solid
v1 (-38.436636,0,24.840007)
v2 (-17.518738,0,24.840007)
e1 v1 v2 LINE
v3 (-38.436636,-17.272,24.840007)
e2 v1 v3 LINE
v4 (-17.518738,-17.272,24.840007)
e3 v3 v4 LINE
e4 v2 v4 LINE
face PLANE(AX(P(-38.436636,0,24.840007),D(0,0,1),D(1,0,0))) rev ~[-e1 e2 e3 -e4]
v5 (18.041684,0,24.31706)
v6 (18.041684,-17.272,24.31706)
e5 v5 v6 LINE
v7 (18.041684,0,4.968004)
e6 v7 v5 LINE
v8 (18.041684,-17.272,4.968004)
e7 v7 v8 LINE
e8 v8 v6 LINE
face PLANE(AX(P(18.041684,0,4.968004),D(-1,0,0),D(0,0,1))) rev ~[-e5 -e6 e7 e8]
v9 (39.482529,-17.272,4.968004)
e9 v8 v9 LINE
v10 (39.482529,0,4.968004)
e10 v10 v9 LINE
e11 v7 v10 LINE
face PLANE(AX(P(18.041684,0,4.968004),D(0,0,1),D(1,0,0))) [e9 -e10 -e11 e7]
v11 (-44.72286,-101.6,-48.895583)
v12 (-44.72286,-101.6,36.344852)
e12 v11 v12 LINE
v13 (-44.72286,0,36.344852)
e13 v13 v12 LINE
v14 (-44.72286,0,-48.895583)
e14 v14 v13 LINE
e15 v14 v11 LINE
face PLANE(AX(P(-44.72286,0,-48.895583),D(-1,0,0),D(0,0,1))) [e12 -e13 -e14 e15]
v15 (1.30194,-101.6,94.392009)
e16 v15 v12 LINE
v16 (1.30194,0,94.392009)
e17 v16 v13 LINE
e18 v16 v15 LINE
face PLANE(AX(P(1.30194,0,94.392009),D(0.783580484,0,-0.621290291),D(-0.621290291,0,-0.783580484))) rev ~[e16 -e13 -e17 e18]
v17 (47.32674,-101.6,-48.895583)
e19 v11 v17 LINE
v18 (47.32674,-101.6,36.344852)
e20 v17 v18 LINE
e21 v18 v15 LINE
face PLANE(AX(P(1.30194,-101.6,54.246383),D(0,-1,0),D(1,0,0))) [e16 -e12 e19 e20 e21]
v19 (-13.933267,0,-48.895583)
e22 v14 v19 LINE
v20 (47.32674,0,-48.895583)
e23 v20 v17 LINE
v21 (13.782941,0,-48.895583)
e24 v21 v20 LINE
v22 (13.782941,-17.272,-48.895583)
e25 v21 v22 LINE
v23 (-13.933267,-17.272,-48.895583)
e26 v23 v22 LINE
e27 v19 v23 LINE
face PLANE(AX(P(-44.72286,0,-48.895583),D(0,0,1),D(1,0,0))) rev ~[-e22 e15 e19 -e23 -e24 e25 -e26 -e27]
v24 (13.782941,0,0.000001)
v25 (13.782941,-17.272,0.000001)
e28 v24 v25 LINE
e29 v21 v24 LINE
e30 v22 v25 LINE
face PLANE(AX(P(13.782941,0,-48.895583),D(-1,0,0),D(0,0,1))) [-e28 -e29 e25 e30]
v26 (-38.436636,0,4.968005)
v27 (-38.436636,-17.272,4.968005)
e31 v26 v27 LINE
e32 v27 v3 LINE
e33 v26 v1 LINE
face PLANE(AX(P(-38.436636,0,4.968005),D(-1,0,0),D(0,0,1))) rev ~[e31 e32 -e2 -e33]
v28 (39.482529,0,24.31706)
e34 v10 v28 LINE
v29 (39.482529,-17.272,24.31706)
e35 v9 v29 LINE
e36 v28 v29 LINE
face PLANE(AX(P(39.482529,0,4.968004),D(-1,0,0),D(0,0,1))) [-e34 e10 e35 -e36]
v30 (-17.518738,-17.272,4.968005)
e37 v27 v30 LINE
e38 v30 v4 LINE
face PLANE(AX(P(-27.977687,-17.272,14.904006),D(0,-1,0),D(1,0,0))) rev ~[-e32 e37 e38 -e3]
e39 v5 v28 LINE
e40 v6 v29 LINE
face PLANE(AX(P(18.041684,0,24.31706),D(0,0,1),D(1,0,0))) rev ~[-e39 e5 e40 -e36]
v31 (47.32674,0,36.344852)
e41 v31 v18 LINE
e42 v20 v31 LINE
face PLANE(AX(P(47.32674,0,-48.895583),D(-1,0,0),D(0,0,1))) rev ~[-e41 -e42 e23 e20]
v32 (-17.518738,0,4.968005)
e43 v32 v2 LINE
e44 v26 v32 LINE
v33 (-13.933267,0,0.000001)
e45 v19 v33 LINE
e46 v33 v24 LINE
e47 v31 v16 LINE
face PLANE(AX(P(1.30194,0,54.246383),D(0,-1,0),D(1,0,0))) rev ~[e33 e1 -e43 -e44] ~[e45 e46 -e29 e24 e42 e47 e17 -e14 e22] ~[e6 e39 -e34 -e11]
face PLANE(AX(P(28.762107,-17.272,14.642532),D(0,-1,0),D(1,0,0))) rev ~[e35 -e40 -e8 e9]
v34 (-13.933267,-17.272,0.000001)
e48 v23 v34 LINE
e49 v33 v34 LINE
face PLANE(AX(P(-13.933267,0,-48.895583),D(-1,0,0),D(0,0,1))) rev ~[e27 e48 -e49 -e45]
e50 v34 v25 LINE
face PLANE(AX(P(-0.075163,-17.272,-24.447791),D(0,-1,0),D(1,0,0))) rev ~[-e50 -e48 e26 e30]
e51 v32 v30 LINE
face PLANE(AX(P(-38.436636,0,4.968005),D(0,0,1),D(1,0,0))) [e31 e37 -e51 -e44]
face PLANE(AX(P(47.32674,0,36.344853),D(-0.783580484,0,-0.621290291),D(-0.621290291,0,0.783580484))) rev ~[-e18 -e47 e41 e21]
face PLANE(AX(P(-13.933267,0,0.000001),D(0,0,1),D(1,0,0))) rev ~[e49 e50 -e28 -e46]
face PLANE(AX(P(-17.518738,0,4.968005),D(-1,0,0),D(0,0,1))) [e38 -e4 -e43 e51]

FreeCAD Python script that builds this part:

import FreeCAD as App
import Part
import Sketcher
from FreeCAD import Vector
Q = App.Units.Quantity

doc = App.newDocument("Part")
body = doc.addObject("PartDesign::Body", "Body")

sketch1 = body.newObject("Sketcher::SketchObject", "Sketch")
sketch1.AttachmentSupport = (doc.getObject("XZ_Plane"), [""])
sketch1.MapMode = "FlatFace"
sketch1.addGeometry([
    Part.LineSegment(Vector(1, 94, 0), Vector(-45, 36, 0)),
    Part.LineSegment(Vector(-45, 36, 0), Vector(-45, -49, 0)),
    Part.LineSegment(Vector(-45, -49, 0), Vector(47, -49, 0)),
    Part.LineSegment(Vector(47, -49, 0), Vector(47, 36, 0)),
    Part.LineSegment(Vector(47, 36, 0), Vector(1, 94, 0)),
], False)
sketch1.addConstraint([
    Sketcher.Constraint("Coincident", 0, 2, 1, 1),
    Sketcher.Constraint("Coincident", 1, 2, 2, 1),
    Sketcher.Constraint("Coincident", 2, 2, 3, 1),
    Sketcher.Constraint("Coincident", 3, 2, 4, 1),
    Sketcher.Constraint("Coincident", 4, 2, 0, 1),
    Sketcher.Constraint("Vertical", 1),
    Sketcher.Constraint("Horizontal", 2),
    Sketcher.Constraint("Vertical", 3),
    Sketcher.Constraint("Horizontal", 0, 2, 3, 2),
    Sketcher.Constraint("Equal", 0, 4),
    Sketcher.Constraint("DistanceX", 2, 1, 2, 2, Q("3.624 in")),
    Sketcher.Constraint("Distance", 0, Q("74.07938 mm")),
    Sketcher.Constraint("DistanceY", 1, 2, 1, 1, Q("85.240435 mm")),
    Sketcher.Constraint("DistanceX", 0, 2, -1, 1, Q("44.72286 mm")),
    Sketcher.Constraint("DistanceY", -1, 1, 4, 2, Q("94.392009 mm")),
])
pad1 = body.newObject("PartDesign::Pad", "Pad")
pad1.Profile = sketch1
pad1.Length = Q("4 in")

sketch2 = body.newObject("Sketcher::SketchObject", "Sketch001")
sketch2.AttachmentSupport = (doc.getObject("XZ_Plane"), [""])
sketch2.MapMode = "FlatFace"
sketch2.addGeometry([
    Part.LineSegment(Vector(18, 24, 0), Vector(18, 5, 0)),
    Part.LineSegment(Vector(18, 5, 0), Vector(39, 5, 0)),
    Part.LineSegment(Vector(39, 5, 0), Vector(39, 24, 0)),
    Part.LineSegment(Vector(39, 24, 0), Vector(18, 24, 0)),
    Part.LineSegment(Vector(-38, 25, 0), Vector(-38, 5, 0)),
    Part.LineSegment(Vector(-38, 5, 0), Vector(-18, 5, 0)),
    Part.LineSegment(Vector(-18, 5, 0), Vector(-18, 25, 0)),
    Part.LineSegment(Vector(-18, 25, 0), Vector(-38, 25, 0)),
    Part.LineSegment(Vector(-14, 0, 0), Vector(-14, -49, 0)),
    Part.LineSegment(Vector(-14, -49, 0), Vector(14, -49, 0)),
    Part.LineSegment(Vector(14, -49, 0), Vector(14, 0, 0)),
    Part.LineSegment(Vector(14, 0, 0), Vector(-14, 0, 0)),
], False)
sketch2.addConstraint([
    Sketcher.Constraint("Coincident", 0, 2, 1, 1),
    Sketcher.Constraint("Coincident", 1, 2, 2, 1),
    Sketcher.Constraint("Coincident", 2, 2, 3, 1),
    Sketcher.Constraint("Coincident", 3, 2, 0, 1),
    Sketcher.Constraint("Coincident", 4, 2, 5, 1),
    Sketcher.Constraint("Coincident", 5, 2, 6, 1),
    Sketcher.Constraint("Coincident", 6, 2, 7, 1),
    Sketcher.Constraint("Coincident", 7, 2, 4, 1),
    Sketcher.Constraint("Coincident", 8, 2, 9, 1),
    Sketcher.Constraint("Coincident", 9, 2, 10, 1),
    Sketcher.Constraint("Coincident", 10, 2, 11, 1),
    Sketcher.Constraint("Coincident", 11, 2, 8, 1),
    Sketcher.Constraint("Vertical", 0),
    Sketcher.Constraint("Horizontal", 1),
    Sketcher.Constraint("Vertical", 2),
    Sketcher.Constraint("Horizontal", 3),
    Sketcher.Constraint("Vertical", 4),
    Sketcher.Constraint("Horizontal", 5),
    Sketcher.Constraint("Vertical", 6),
    Sketcher.Constraint("Horizontal", 7),
    Sketcher.Constraint("Vertical", 8),
    Sketcher.Constraint("Horizontal", 9),
    Sketcher.Constraint("Vertical", 10),
    Sketcher.Constraint("Horizontal", 11),
    Sketcher.Constraint("PointOnObject", 10, 2, -1),
    Sketcher.Constraint("Horizontal", 1, 2, 4, 2),
    Sketcher.Constraint("DistanceX", 5, 1, 5, 2, Q("20.917898 mm")),
    Sketcher.Constraint("DistanceX", 9, 1, 9, 2, Q("27.716208 mm")),
    Sketcher.Constraint("DistanceX", 1, 1, 1, 2, Q("21.440845 mm")),
    Sketcher.Constraint("DistanceY", 0, 2, 0, 1, Q("19.349056 mm")),
    Sketcher.Constraint("DistanceY", 4, 2, 4, 1, Q("19.872003 mm")),
    Sketcher.Constraint("DistanceY", 8, 2, 8, 1, Q("48.895583 mm")),
    Sketcher.Constraint("DistanceX", -1, 1, 1, 2, Q("39.482529 mm")),
    Sketcher.Constraint("DistanceY", -1, 1, 2, 2, Q("24.31706 mm")),
    Sketcher.Constraint("DistanceX", -1, 1, 9, 2, Q("13.782941 mm")),
    Sketcher.Constraint("DistanceX", 4, 2, 0, 2, Q("56.47832 mm")),
])
pocket1 = body.newObject("PartDesign::Pocket", "Pocket")
pocket1.Profile = sketch2
pocket1.Length = Q("0.68 in")
pocket1.Reversed = True

doc.recompute()
